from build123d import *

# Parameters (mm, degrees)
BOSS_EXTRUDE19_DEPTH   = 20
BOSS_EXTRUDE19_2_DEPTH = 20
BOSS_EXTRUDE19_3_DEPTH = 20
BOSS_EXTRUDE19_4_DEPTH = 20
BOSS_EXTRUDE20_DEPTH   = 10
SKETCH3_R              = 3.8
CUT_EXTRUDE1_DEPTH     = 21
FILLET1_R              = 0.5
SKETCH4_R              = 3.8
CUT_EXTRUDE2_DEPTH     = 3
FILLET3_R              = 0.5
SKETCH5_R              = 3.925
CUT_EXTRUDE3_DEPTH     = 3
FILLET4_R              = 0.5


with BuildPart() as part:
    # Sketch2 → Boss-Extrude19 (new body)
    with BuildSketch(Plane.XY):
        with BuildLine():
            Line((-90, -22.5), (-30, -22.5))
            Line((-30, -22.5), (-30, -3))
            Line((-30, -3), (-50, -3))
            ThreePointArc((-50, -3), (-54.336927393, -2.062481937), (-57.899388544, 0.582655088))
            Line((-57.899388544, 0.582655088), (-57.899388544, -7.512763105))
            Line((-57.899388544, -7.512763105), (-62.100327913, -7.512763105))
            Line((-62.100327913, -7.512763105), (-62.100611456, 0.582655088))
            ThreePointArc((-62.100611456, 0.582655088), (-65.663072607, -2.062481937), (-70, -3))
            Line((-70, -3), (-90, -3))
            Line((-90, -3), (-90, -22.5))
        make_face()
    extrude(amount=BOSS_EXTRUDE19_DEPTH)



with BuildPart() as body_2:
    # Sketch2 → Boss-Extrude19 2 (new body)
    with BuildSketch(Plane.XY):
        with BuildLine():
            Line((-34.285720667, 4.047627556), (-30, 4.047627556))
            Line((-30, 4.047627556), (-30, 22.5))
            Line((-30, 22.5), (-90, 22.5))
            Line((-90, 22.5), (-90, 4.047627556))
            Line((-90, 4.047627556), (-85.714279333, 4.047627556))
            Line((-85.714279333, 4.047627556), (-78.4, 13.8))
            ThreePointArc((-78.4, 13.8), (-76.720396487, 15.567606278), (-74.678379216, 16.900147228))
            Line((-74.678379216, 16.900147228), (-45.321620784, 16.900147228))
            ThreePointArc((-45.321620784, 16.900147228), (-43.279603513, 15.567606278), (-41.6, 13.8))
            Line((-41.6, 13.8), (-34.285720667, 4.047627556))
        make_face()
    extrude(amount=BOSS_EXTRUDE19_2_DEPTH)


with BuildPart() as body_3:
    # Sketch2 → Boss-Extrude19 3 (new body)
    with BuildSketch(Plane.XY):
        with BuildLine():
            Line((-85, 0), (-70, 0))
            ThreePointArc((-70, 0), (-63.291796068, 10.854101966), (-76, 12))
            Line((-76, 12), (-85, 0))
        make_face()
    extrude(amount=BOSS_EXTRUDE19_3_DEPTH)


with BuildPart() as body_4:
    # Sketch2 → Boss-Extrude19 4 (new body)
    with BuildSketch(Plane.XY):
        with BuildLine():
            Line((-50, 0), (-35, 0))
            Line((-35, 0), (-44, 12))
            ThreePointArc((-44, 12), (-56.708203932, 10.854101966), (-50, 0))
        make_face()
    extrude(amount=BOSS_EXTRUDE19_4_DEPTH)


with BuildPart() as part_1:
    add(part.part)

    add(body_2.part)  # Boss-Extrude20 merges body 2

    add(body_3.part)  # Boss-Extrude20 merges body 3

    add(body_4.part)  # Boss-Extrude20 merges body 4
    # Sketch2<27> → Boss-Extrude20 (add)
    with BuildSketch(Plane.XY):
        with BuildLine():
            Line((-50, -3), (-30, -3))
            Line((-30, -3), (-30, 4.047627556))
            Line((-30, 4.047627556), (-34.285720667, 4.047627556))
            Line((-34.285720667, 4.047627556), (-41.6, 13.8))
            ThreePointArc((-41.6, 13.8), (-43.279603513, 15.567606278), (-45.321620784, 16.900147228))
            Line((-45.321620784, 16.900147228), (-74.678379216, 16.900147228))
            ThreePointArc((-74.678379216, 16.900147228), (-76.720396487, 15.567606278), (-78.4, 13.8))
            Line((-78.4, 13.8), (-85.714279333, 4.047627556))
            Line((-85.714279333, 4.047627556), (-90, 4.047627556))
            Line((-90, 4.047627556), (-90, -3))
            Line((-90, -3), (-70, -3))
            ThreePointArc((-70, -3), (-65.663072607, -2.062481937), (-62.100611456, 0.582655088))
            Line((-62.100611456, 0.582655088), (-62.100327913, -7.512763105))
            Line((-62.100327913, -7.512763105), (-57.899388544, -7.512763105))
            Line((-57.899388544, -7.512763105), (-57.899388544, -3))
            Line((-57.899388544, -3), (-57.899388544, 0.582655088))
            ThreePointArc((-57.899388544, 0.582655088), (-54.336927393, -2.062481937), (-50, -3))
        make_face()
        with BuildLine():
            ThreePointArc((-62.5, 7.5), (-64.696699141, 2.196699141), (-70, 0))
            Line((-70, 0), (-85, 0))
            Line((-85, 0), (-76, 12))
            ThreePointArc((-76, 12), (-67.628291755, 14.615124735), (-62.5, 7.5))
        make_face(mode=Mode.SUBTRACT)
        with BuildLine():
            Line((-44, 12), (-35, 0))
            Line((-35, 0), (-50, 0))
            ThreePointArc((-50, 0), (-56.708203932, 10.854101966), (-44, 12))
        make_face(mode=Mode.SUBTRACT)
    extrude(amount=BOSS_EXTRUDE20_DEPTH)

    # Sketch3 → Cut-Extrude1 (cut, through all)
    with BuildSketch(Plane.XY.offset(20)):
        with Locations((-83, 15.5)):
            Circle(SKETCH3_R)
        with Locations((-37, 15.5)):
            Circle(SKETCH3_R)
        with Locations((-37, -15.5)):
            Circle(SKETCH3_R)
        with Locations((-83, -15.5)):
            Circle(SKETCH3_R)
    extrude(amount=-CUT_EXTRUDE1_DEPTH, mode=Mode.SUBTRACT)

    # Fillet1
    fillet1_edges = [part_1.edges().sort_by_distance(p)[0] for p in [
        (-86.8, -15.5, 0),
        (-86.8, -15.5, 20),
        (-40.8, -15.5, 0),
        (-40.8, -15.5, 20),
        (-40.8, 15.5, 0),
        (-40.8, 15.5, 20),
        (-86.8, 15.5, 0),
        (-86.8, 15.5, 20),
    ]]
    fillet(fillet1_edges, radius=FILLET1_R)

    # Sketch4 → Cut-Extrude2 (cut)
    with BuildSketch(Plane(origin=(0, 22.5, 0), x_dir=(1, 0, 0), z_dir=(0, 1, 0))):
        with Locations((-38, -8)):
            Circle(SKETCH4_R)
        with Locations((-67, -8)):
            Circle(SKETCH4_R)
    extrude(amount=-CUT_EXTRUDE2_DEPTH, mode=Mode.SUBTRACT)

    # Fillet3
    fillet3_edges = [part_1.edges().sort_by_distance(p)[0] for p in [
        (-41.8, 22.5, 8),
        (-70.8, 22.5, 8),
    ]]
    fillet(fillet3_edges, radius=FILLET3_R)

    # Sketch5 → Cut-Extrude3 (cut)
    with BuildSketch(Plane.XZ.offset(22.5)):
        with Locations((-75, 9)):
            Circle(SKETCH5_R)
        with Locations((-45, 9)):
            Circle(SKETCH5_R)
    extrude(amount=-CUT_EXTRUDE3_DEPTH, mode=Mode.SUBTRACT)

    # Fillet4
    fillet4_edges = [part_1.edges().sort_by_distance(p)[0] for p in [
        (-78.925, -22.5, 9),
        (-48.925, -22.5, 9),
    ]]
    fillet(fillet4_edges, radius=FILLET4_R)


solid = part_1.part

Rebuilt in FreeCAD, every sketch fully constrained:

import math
import FreeCAD as App
import Part
import Sketcher

V = App.Vector
Q = App.Units.Quantity


def edges_at(feature, points):
    """Names of the edges that pass closest to the given points."""
    edges = feature.Shape.Edges
    near = lambda p: min(range(len(edges)), key=lambda i: edges[i].distToShape(Part.Vertex(*p))[0])
    return sorted({f"Edge{near(p) + 1}" for p in points})

doc = App.newDocument("Part")
body = doc.addObject("PartDesign::Body", "Body")

# Sketch on XY plane
sketch1 = body.newObject("Sketcher::SketchObject", "Sketch")
sketch1.AttachmentSupport = (doc.getObject("XY_Plane"), [""])
sketch1.MapMode = "FlatFace"
sketch1.addGeometry([
    Part.LineSegment(V(-90, -22.5, 0), V(-30, -22.5, 0)),  # 0
    Part.LineSegment(V(-30, -22.5, 0), V(-30, -3, 0)),  # 1
    Part.LineSegment(V(-30, -3, 0), V(-50, -3, 0)),  # 2
    Part.ArcOfCircle(Part.Circle(V(-50, 7.5, 0), V(0, 0, 1), 10.5), math.radians(-138.791982), math.radians(-90)),  # 3
    Part.LineSegment(V(-57.899389, 0.582655, 0), V(-57.899389, -7.512763, 0)),  # 4
    Part.LineSegment(V(-57.899389, -7.512763, 0), V(-62.100328, -7.512763, 0)),  # 5
    Part.LineSegment(V(-62.100328, -7.512763, 0), V(-62.100611, 0.582655, 0)),  # 6
    Part.ArcOfCircle(Part.Circle(V(-70, 7.5, 0), V(0, 0, 1), 10.5), math.radians(-90), math.radians(-41.208018)),  # 7
    Part.LineSegment(V(-70, -3, 0), V(-90, -3, 0)),  # 8
    Part.LineSegment(V(-90, -3, 0), V(-90, -22.5, 0)),  # 9
], False)
sketch1.addConstraint([
    Sketcher.Constraint("Coincident", 0, 2, 1, 1),
    Sketcher.Constraint("Coincident", 1, 2, 2, 1),
    Sketcher.Constraint("Tangent", 2, 2, 3, 2),
    Sketcher.Constraint("Coincident", 3, 1, 4, 1),
    Sketcher.Constraint("Coincident", 4, 2, 5, 1),
    Sketcher.Constraint("Coincident", 5, 2, 6, 1),
    Sketcher.Constraint("Coincident", 6, 2, 7, 2),
    Sketcher.Constraint("Tangent", 7, 1, 8, 1),
    Sketcher.Constraint("Coincident", 8, 2, 9, 1),
    Sketcher.Constraint("Coincident", 9, 2, 0, 1),
    Sketcher.Constraint("Horizontal", 0),
    Sketcher.Constraint("Vertical", 1),
    Sketcher.Constraint("Horizontal", 2),
    Sketcher.Constraint("Vertical", 4),
    Sketcher.Constraint("Horizontal", 5),
    Sketcher.Constraint("Horizontal", 8),
    Sketcher.Constraint("Vertical", 9),
    Sketcher.Constraint("Equal", 3, 7),
    Sketcher.Constraint("Horizontal", 3, 3, 7, 3),
    Sketcher.Constraint("Horizontal", 3, 1, 6, 2),
    Sketcher.Constraint("Equal", 2, 8),
    Sketcher.Constraint("Radius", 3, Q("10.5 mm")),
    Sketcher.Constraint("DistanceX", 0, 1, 0, 2, Q("60 mm")),
    Sketcher.Constraint("DistanceX", 2, 2, 2, 1, Q("20 mm")),
    Sketcher.Constraint("DistanceY", 1, 1, 1, 2, Q("19.5 mm")),
    Sketcher.Constraint("DistanceX", 3, 3, -1, 1, Q("50 mm")),
    Sketcher.Constraint("DistanceY", 1, 2, -1, 1, Q("3 mm")),
    Sketcher.Constraint("DistanceX", 5, 2, 5, 1, Q("4.200939 mm")),
    Sketcher.Constraint("DistanceY", 4, 2, 4, 1, Q("8.095418 mm")),
    Sketcher.Constraint("DistanceX", 3, 1, -1, 1, Q("57.899389 mm")),
])
pad1 = body.newObject("PartDesign::Pad", "Pad")
pad1.Profile = sketch1
pad1.Length = 20
body2 = doc.addObject("PartDesign::Body", "Body001")

# Sketch on XY plane
sketch2 = body2.newObject("Sketcher::SketchObject", "Sketch001")
sketch2.AttachmentSupport = (doc.getObject("XY_Plane001"), [""])
sketch2.MapMode = "FlatFace"
sketch2.addGeometry([
    Part.LineSegment(V(-34.285721, 4.047628, 0), V(-30, 4.047628, 0)),  # 0
    Part.LineSegment(V(-30, 4.047628, 0), V(-30, 22.5, 0)),  # 1
    Part.LineSegment(V(-30, 22.5, 0), V(-90, 22.5, 0)),  # 2
    Part.LineSegment(V(-90, 22.5, 0), V(-90, 4.047628, 0)),  # 3
    Part.LineSegment(V(-90, 4.047628, 0), V(-85.714279, 4.047628, 0)),  # 4
    Part.LineSegment(V(-85.714279, 4.047628, 0), V(-78.4, 13.8, 0)),  # 5
    Part.ArcOfCircle(Part.Circle(V(-70, 7.5, 0), V(0, 0, 1), 10.5), math.radians(116.459168), math.radians(143.130102)),  # 6
    Part.LineSegment(V(-74.678379, 16.900147, 0), V(-45.321621, 16.900147, 0)),  # 7
    Part.ArcOfCircle(Part.Circle(V(-50, 7.5, 0), V(0, 0, 1), 10.5), math.radians(36.869898), math.radians(63.540832)),  # 8
    Part.LineSegment(V(-41.6, 13.8, 0), V(-34.285721, 4.047628, 0)),  # 9
], False)
sketch2.addConstraint([
    Sketcher.Constraint("Coincident", 0, 2, 1, 1),
    Sketcher.Constraint("Coincident", 1, 2, 2, 1),
    Sketcher.Constraint("Coincident", 2, 2, 3, 1),
    Sketcher.Constraint("Coincident", 3, 2, 4, 1),
    Sketcher.Constraint("Coincident", 4, 2, 5, 1),
    Sketcher.Constraint("Tangent", 5, 2, 6, 2),
    Sketcher.Constraint("Coincident", 6, 1, 7, 1),
    Sketcher.Constraint("Coincident", 7, 2, 8, 2),
    Sketcher.Constraint("Tangent", 8, 1, 9, 1),
    Sketcher.Constraint("Coincident", 9, 2, 0, 1),
    Sketcher.Constraint("Horizontal", 0),
    Sketcher.Constraint("Vertical", 1),
    Sketcher.Constraint("Horizontal", 2),
    Sketcher.Constraint("Vertical", 3),
    Sketcher.Constraint("Horizontal", 4),
    Sketcher.Constraint("Horizontal", 7),
    Sketcher.Constraint("Equal", 6, 8),
    Sketcher.Constraint("Horizontal", 6, 3, 8, 3),
    Sketcher.Constraint("Horizontal", 0, 2, 3, 2),
    Sketcher.Constraint("Horizontal", 5, 2, 8, 1),
    Sketcher.Constraint("Equal", 0, 4),
    Sketcher.Constraint("Radius", 6, Q("10.5 mm")),
    Sketcher.Constraint("DistanceX", 2, 2, 2, 1, Q("60 mm")),
    Sketcher.Constraint("DistanceX", 6, 3, -1, 1, Q("70 mm")),
    Sketcher.Constraint("DistanceX", 8, 3, -1, 1, Q("50 mm")),
    Sketcher.Constraint("DistanceY", 8, 3, 1, 2, Q("15 mm")),
    Sketcher.Constraint("DistanceY", -1, 1, 6, 3, Q("7.5 mm")),
    Sketcher.Constraint("DistanceX", 5, 2, -1, 1, Q("78.4 mm")),
    Sketcher.Constraint("DistanceX", 0, 1, 0, 2, Q("4.285721 mm")),
    Sketcher.Constraint("DistanceX", 7, 1, 7, 2, Q("29.356758 mm")),
])
pad2 = body2.newObject("PartDesign::Pad", "Pad001")
pad2.Profile = sketch2
pad2.Length = 20
body3 = doc.addObject("PartDesign::Body", "Body002")

# Sketch on XY plane
sketch3 = body3.newObject("Sketcher::SketchObject", "Sketch002")
sketch3.AttachmentSupport = (doc.getObject("XY_Plane002"), [""])
sketch3.MapMode = "FlatFace"
sketch3.addGeometry([
    Part.LineSegment(V(-85, 0, 0), V(-70, 0, 0)),
    Part.ArcOfCircle(Part.Circle(V(-70, 7.5, 0), V(0, 0, 1), 7.5), math.radians(-90), math.radians(143.130102)),
    Part.LineSegment(V(-76, 12, 0), V(-85, 0, 0)),
], False)
sketch3.addConstraint([
    Sketcher.Constraint("Tangent", 0, 2, 1, 1),
    Sketcher.Constraint("Tangent", 1, 2, 2, 1),
    Sketcher.Constraint("Coincident", 2, 2, 0, 1),
    Sketcher.Constraint("Horizontal", 0),
    Sketcher.Constraint("PointOnObject", 0, 2, -1),
    Sketcher.Constraint("Radius", 1, Q("7.5 mm")),
    Sketcher.Constraint("DistanceX", 0, 1, 0, 2, Q("15 mm")),
    Sketcher.Constraint("DistanceX", 1, 3, -1, 1, Q("70 mm")),
])
pad3 = body3.newObject("PartDesign::Pad", "Pad002")
pad3.Profile = sketch3
pad3.Length = 20
body4 = doc.addObject("PartDesign::Body", "Body003")

# Sketch on XY plane
sketch4 = body4.newObject("Sketcher::SketchObject", "Sketch003")
sketch4.AttachmentSupport = (doc.getObject("XY_Plane003"), [""])
sketch4.MapMode = "FlatFace"
sketch4.addGeometry([
    Part.LineSegment(V(-50, 0, 0), V(-35, 0, 0)),
    Part.LineSegment(V(-35, 0, 0), V(-44, 12, 0)),
    Part.ArcOfCircle(Part.Circle(V(-50, 7.5, 0), V(0, 0, 1), 7.5), math.radians(36.869898), math.radians(270)),
], False)
sketch4.addConstraint([
    Sketcher.Constraint("Coincident", 0, 2, 1, 1),
    Sketcher.Constraint("Tangent", 1, 2, 2, 1),
    Sketcher.Constraint("Tangent", 2, 2, 0, 1),
    Sketcher.Constraint("Horizontal", 0),
    Sketcher.Constraint("PointOnObject", 0, 2, -1),
    Sketcher.Constraint("Radius", 2, Q("7.5 mm")),
    Sketcher.Constraint("DistanceX", 0, 1, 0, 2, Q("15 mm")),
    Sketcher.Constraint("DistanceX", 2, 3, -1, 1, Q("50 mm")),
])
pad4 = body4.newObject("PartDesign::Pad", "Pad003")
pad4.Profile = sketch4
pad4.Length = 20
body.AllowCompound = True
doc.recompute()

boolean = body.newObject("PartDesign::Boolean", "Boolean")
boolean.Type = "Fuse"
boolean.addObjects([body2])
doc.recompute()

boolean2 = body.newObject("PartDesign::Boolean", "Boolean001")
boolean2.Type = "Fuse"
boolean2.addObjects([body3])
doc.recompute()

boolean3 = body.newObject("PartDesign::Boolean", "Boolean002")
boolean3.Type = "Fuse"
boolean3.addObjects([body4])

# Sketch on XY plane
sketch5 = body.newObject("Sketcher::SketchObject", "Sketch004")
sketch5.AttachmentSupport = (doc.getObject("XY_Plane"), [""])
sketch5.MapMode = "FlatFace"
sketch5.addGeometry([
    Part.LineSegment(V(-50, -3, 0), V(-30, -3, 0)),  # 0
    Part.LineSegment(V(-30, -3, 0), V(-30, 4.047628, 0)),  # 1
    Part.LineSegment(V(-30, 4.047628, 0), V(-34.285721, 4.047628, 0)),  # 2
    Part.LineSegment(V(-34.285721, 4.047628, 0), V(-41.6, 13.8, 0)),  # 3
    Part.ArcOfCircle(Part.Circle(V(-50, 7.5, 0), V(0, 0, 1), 10.5), math.radians(36.869898), math.radians(63.540832)),  # 4
    Part.LineSegment(V(-45.321621, 16.900147, 0), V(-74.678379, 16.900147, 0)),  # 5
    Part.ArcOfCircle(Part.Circle(V(-70, 7.5, 0), V(0, 0, 1), 10.5), math.radians(116.459168), math.radians(143.130102)),  # 6
    Part.LineSegment(V(-78.4, 13.8, 0), V(-85.714279, 4.047628, 0)),  # 7
    Part.LineSegment(V(-85.714279, 4.047628, 0), V(-90, 4.047628, 0)),  # 8
    Part.LineSegment(V(-90, 4.047628, 0), V(-90, -3, 0)),  # 9
    Part.LineSegment(V(-90, -3, 0), V(-70, -3, 0)),  # 10
    Part.ArcOfCircle(Part.Circle(V(-70, 7.5, 0), V(0, 0, 1), 10.5), math.radians(-90), math.radians(-41.208018)),  # 11
    Part.LineSegment(V(-62.100611, 0.582655, 0), V(-62.100328, -7.512763, 0)),  # 12
    Part.LineSegment(V(-62.100328, -7.512763, 0), V(-57.899389, -7.512763, 0)),  # 13
    Part.LineSegment(V(-57.899389, -7.512763, 0), V(-57.899389, 0.582655, 0)),  # 14
    Part.ArcOfCircle(Part.Circle(V(-50, 7.5, 0), V(0, 0, 1), 10.5), math.radians(-138.791982), math.radians(-90)),  # 15
    Part.ArcOfCircle(Part.Circle(V(-70, 7.5, 0), V(0, 0, 1), 7.5), math.radians(0), math.radians(143.130102)),  # 16
    Part.ArcOfCircle(Part.Circle(V(-70, 7.5, 0), V(0, 0, 1), 7.5), math.radians(-90), math.radians(0)),  # 17
    Part.LineSegment(V(-70, 0, 0), V(-85, 0, 0)),  # 18
    Part.LineSegment(V(-85, 0, 0), V(-76, 12, 0)),  # 19
    Part.ArcOfCircle(Part.Circle(V(-50, 7.5, 0), V(0, 0, 1), 7.5), math.radians(36.869898), math.radians(270)),  # 20
    Part.LineSegment(V(-44, 12, 0), V(-35, 0, 0)),  # 21
    Part.LineSegment(V(-35, 0, 0), V(-50, 0, 0)),  # 22
], False)
sketch5.addConstraint([
    Sketcher.Constraint("Coincident", 0, 2, 1, 1),
    Sketcher.Constraint("Coincident", 1, 2, 2, 1),
    Sketcher.Constraint("Coincident", 2, 2, 3, 1),
    Sketcher.Constraint("Tangent", 3, 2, 4, 1),
    Sketcher.Constraint("Coincident", 4, 2, 5, 1),
    Sketcher.Constraint("Coincident", 5, 2, 6, 1),
    Sketcher.Constraint("Tangent", 6, 2, 7, 1),
    Sketcher.Constraint("Coincident", 7, 2, 8, 1),
    Sketcher.Constraint("Coincident", 8, 2, 9, 1),
    Sketcher.Constraint("Coincident", 9, 2, 10, 1),
    Sketcher.Constraint("Tangent", 10, 2, 11, 1),
    Sketcher.Constraint("Coincident", 11, 2, 12, 1),
    Sketcher.Constraint("Coincident", 12, 2, 13, 1),
    Sketcher.Constraint("Coincident", 13, 2, 14, 1),
    Sketcher.Constraint("Coincident", 14, 2, 15, 1),
    Sketcher.Constraint("Tangent", 15, 2, 0, 1),
    Sketcher.Constraint("Tangent", 16, 1, 17, 2),
    Sketcher.Constraint("Tangent", 17, 1, 18, 1),
    Sketcher.Constraint("Coincident", 18, 2, 19, 1),
    Sketcher.Constraint("Tangent", 19, 2, 16, 2),
    Sketcher.Constraint("Tangent", 20, 1, 21, 1),
    Sketcher.Constraint("Coincident", 21, 2, 22, 1),
    Sketcher.Constraint("Tangent", 22, 2, 20, 2),
    Sketcher.Constraint("Horizontal", 0),
    Sketcher.Constraint("Vertical", 1),
    Sketcher.Constraint("Horizontal", 2),
    Sketcher.Constraint("Horizontal", 5),
    Sketcher.Constraint("Horizontal", 8),
    Sketcher.Constraint("Vertical", 9),
    Sketcher.Constraint("Horizontal", 10),
    Sketcher.Constraint("Horizontal", 13),
    Sketcher.Constraint("Vertical", 14),
    Sketcher.Constraint("Horizontal", 18),
    Sketcher.Constraint("Horizontal", 22),
    Sketcher.Constraint("Coincident", 11, 3, 6, 3),
    Sketcher.Constraint("Coincident", 15, 3, 4, 3),
    Sketcher.Constraint("Coincident", 16, 3, 6, 3),
    Sketcher.Constraint("Coincident", 20, 3, 4, 3),
    Sketcher.Constraint("Equal", 4, 6),
    Sketcher.Constraint("Equal", 6, 11),
    Sketcher.Constraint("Equal", 11, 15),
    Sketcher.Constraint("Equal", 16, 17),
    Sketcher.Constraint("Equal", 17, 20),
    Sketcher.Constraint("PointOnObject", 17, 1, -1),
    Sketcher.Constraint("PointOnObject", 21, 2, -1),
    Sketcher.Constraint("Parallel", 7, 19),
    Sketcher.Constraint("Parallel", 3, 21),
    Sketcher.Constraint("Horizontal", 3, 2, 6, 2),
    Sketcher.Constraint("Horizontal", 2, 2, 7, 2),
    Sketcher.Constraint("Horizontal", 11, 2, 14, 2),
    Sketcher.Constraint("Horizontal", 20, 3, 16, 1),
    Sketcher.Constraint("Equal", 2, 8),
    Sketcher.Constraint("Radius", 4, Q("10.5 mm")),
    Sketcher.Constraint("Radius", 16, Q("7.5 mm")),
    Sketcher.Constraint("DistanceX", 0, 1, 0, 2, Q("20 mm")),
    Sketcher.Constraint("DistanceX", 18, 2, 18, 1, Q("15 mm")),
    Sketcher.Constraint("DistanceX", 4, 3, -1, 1, Q("50 mm")),
    Sketcher.Constraint("DistanceX", 6, 3, -1, 1, Q("70 mm")),
    Sketcher.Constraint("DistanceX", 2, 2, 2, 1, Q("4.285721 mm")),
    Sketcher.Constraint("DistanceX", 5, 2, 5, 1, Q("29.356758 mm")),
    Sketcher.Constraint("DistanceX", 13, 1, 13, 2, Q("4.200939 mm")),
    Sketcher.Constraint("DistanceY", 14, 1, 14, 2, Q("8.095418 mm")),
    Sketcher.Constraint("DistanceX", 11, 2, -1, 1, Q("62.100611 mm")),
])
pad5 = body.newObject("PartDesign::Pad", "Pad004")
pad5.Profile = sketch5
pad5.Length = 10

# Sketch on XY plane
sketch6 = body.newObject("Sketcher::SketchObject", "Sketch005")
sketch6.AttachmentSupport = (doc.getObject("XY_Plane"), [""])
sketch6.MapMode = "FlatFace"
sketch6.AttachmentOffset = App.Placement(V(0, 0, 20), App.Rotation())
sketch6.addGeometry([
    Part.Circle(V(-83, 15.5, 0), V(0, 0, 1), 3.8),
    Part.Circle(V(-37, 15.5, 0), V(0, 0, 1), 3.8),
    Part.Circle(V(-37, -15.5, 0), V(0, 0, 1), 3.8),
    Part.Circle(V(-83, -15.5, 0), V(0, 0, 1), 3.8),
], False)
sketch6.addConstraint([
    Sketcher.Constraint("Equal", 0, 1),
    Sketcher.Constraint("Equal", 1, 2),
    Sketcher.Constraint("Equal", 2, 3),
    Sketcher.Constraint("Symmetric", 1, 3, 2, 3, -1),
    Sketcher.Constraint("Symmetric", 0, 3, 3, 3, -1),
    Sketcher.Constraint("Horizontal", 0, 3, 1, 3),
    Sketcher.Constraint("Diameter", 0, Q("7.6 mm")),
    Sketcher.Constraint("DistanceX", 0, 3, -1, 1, Q("83 mm")),
    Sketcher.Constraint("DistanceX", 1, 3, -1, 1, Q("37 mm")),
    Sketcher.Constraint("DistanceY", 2, 3, 1, 3, Q("31 mm")),
])
pocket1 = body.newObject("PartDesign::Pocket", "Pocket")
pocket1.Profile = sketch6
pocket1.Type = "ThroughAll"
doc.recompute()

fillet = body.newObject("PartDesign::Fillet", "Fillet")
fillet.Base = (pocket1, edges_at(pocket1, [
    (-86.8, -15.5, 0),
    (-86.8, -15.5, 20),
    (-40.8, -15.5, 0),
    (-40.8, -15.5, 20),
    (-40.8, 15.5, 0),
    (-40.8, 15.5, 20),
    (-86.8, 15.5, 0),
    (-86.8, 15.5, 20),
]))
fillet.Radius = 0.5

# Sketch on XZ plane
sketch7 = body.newObject("Sketcher::SketchObject", "Sketch006")
sketch7.AttachmentSupport = (doc.getObject("XZ_Plane"), [""])
sketch7.MapMode = "FlatFace"
sketch7.AttachmentOffset = App.Placement(V(0, 0, -22.5), App.Rotation())
sketch7.addGeometry([
    Part.Circle(V(-38, 8, 0), V(0, 0, 1), 3.8),
    Part.Circle(V(-67, 8, 0), V(0, 0, 1), 3.8),
], False)
sketch7.addConstraint([
    Sketcher.Constraint("Equal", 0, 1),
    Sketcher.Constraint("Horizontal", 0, 3, 1, 3),
    Sketcher.Constraint("Diameter", 0, Q("7.6 mm")),
    Sketcher.Constraint("DistanceX", 0, 3, -1, 1, Q("38 mm")),
    Sketcher.Constraint("DistanceY", -1, 1, 0, 3, Q("8 mm")),
    Sketcher.Constraint("DistanceX", 1, 3, -1, 1, Q("67 mm")),
])
pocket2 = body.newObject("PartDesign::Pocket", "Pocket001")
pocket2.Profile = sketch7
pocket2.Length = 3
pocket2.Reversed = True
doc.recompute()

fillet2 = body.newObject("PartDesign::Fillet", "Fillet001")
fillet2.Base = (pocket2, edges_at(pocket2, [(-41.8, 22.5, 8), (-70.8, 22.5, 8)]))
fillet2.Radius = 0.5

# Sketch on XZ plane
sketch8 = body.newObject("Sketcher::SketchObject", "Sketch007")
sketch8.AttachmentSupport = (doc.getObject("XZ_Plane"), [""])
sketch8.MapMode = "FlatFace"
sketch8.AttachmentOffset = App.Placement(V(0, 0, 22.5), App.Rotation())
sketch8.addGeometry([
    Part.Circle(V(-75, 9, 0), V(0, 0, 1), 3.925),
    Part.Circle(V(-45, 9, 0), V(0, 0, 1), 3.925),
], False)
sketch8.addConstraint([
    Sketcher.Constraint("Equal", 0, 1),
    Sketcher.Constraint("Horizontal", 0, 3, 1, 3),
    Sketcher.Constraint("Diameter", 0, Q("7.85 mm")),
    Sketcher.Constraint("DistanceX", 0, 3, -1, 1, Q("75 mm")),
    Sketcher.Constraint("DistanceY", -1, 1, 0, 3, Q("9 mm")),
    Sketcher.Constraint("DistanceX", 1, 3, -1, 1, Q("45 mm")),
])
pocket3 = body.newObject("PartDesign::Pocket", "Pocket002")
pocket3.Profile = sketch8
pocket3.Length = 3
doc.recompute()

fillet3 = body.newObject("PartDesign::Fillet", "Fillet002")
fillet3.Base = (pocket3, edges_at(pocket3, [(-78.925, -22.5, 9), (-48.925, -22.5, 9)]))
fillet3.Radius = 0.5

doc.recompute()
